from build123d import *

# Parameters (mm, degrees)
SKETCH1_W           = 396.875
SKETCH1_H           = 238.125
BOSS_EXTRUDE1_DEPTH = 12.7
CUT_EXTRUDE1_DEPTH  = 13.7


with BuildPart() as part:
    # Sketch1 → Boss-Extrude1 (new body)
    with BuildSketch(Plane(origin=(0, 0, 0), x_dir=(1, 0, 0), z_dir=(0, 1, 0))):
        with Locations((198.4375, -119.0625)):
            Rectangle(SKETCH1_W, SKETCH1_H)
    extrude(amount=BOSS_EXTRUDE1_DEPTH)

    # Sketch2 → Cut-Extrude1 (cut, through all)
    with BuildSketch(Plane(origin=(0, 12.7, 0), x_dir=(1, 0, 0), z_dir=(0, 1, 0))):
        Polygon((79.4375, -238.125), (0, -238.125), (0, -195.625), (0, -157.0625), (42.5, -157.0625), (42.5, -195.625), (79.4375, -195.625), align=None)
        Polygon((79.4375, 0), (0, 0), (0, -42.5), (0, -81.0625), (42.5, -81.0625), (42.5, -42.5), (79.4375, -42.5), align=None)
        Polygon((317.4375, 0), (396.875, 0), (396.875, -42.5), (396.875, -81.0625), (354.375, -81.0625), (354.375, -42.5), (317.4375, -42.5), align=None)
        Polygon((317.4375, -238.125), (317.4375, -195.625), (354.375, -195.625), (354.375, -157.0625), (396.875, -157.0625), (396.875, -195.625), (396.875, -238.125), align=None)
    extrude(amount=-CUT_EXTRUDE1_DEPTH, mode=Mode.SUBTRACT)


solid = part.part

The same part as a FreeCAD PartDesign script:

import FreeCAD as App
import Part
import Sketcher

V = App.Vector
Q = App.Units.Quantity


def add_polygon(sketch, points):
    """Adds a closed chain of lines whose ends are joined by coincident constraints."""
    first, n = sketch.GeometryCount, len(points)
    for a, b in zip(points, points[1:] + points[:1]):
        sketch.addGeometry(Part.LineSegment(App.Vector(*a, 0), App.Vector(*b, 0)), False)
    for i in range(n):
        sketch.addConstraint(Sketcher.Constraint("Coincident", first + i, 2, first + (i + 1) % n, 1))

doc = App.newDocument("Part")
body = doc.addObject("PartDesign::Body", "Body")

sketch1 = body.newObject("Sketcher::SketchObject", "Sketch")
sketch1.AttachmentSupport = (doc.getObject("XZ_Plane"), [""])
sketch1.MapMode = "FlatFace"
add_polygon(sketch1, [(0, 0), (0, 238), (397, 238), (397, 0)])
sketch1.addConstraint([
    Sketcher.Constraint("Vertical", 0),
    Sketcher.Constraint("Horizontal", 1),
    Sketcher.Constraint("Vertical", 2),
    Sketcher.Constraint("Horizontal", 3),
    Sketcher.Constraint("Coincident", 3, 2, -1, 1),
    Sketcher.Constraint("DistanceX", 1, 1, 1, 2, Q("15.625 in")),
    Sketcher.Constraint("DistanceY", 0, 1, 0, 2, Q("9.375 in")),
])
pad1 = body.newObject("PartDesign::Pad", "Pad")
pad1.Profile = sketch1
pad1.Length = Q("0.5 in")
pad1.Reversed = True

sketch2 = body.newObject("Sketcher::SketchObject", "Sketch001")
sketch2.AttachmentSupport = (doc.getObject("XZ_Plane"), [""])
sketch2.MapMode = "FlatFace"
sketch2.AttachmentOffset = App.Placement(V(0, 0, -0.5 * 25.4), App.Rotation())
add_polygon(sketch2, [(0, 238), (79, 238), (79, 196), (42, 196), (42, 157), (0, 157)])
add_polygon(sketch2, [(79, 0), (0, 0), (0, 81), (42, 81), (42, 42), (79, 42)])
add_polygon(sketch2, [(397, 0), (317, 0), (317, 42), (354, 42), (354, 81), (397, 81)])
add_polygon(sketch2, [(317, 196), (317, 238), (397, 238), (397, 157), (354, 157), (354, 196)])
sketch2.addConstraint([
    Sketcher.Constraint("Horizontal", 0),
    Sketcher.Constraint("Vertical", 1),
    Sketcher.Constraint("Horizontal", 2),
    Sketcher.Constraint("Vertical", 3),
    Sketcher.Constraint("Horizontal", 4),
    Sketcher.Constraint("Vertical", 5),
    Sketcher.Constraint("Horizontal", 6),
    Sketcher.Constraint("Vertical", 7),
    Sketcher.Constraint("Horizontal", 8),
    Sketcher.Constraint("Vertical", 9),
    Sketcher.Constraint("Horizontal", 10),
    Sketcher.Constraint("Vertical", 11),
    Sketcher.Constraint("Horizontal", 12),
    Sketcher.Constraint("Vertical", 13),
    Sketcher.Constraint("Horizontal", 14),
    Sketcher.Constraint("Vertical", 15),
    Sketcher.Constraint("Horizontal", 16),
    Sketcher.Constraint("Vertical", 17),
    Sketcher.Constraint("Vertical", 18),
    Sketcher.Constraint("Horizontal", 19),
    Sketcher.Constraint("Vertical", 20),
    Sketcher.Constraint("Horizontal", 21),
    Sketcher.Constraint("Vertical", 22),
    Sketcher.Constraint("Horizontal", 23),
    Sketcher.Constraint("Coincident", 6, 2, -1, 1),
    Sketcher.Constraint("PointOnObject", 4, 2, -2),
    Sketcher.Constraint("PointOnObject", 12, 2, -1),
    Sketcher.Constraint("Horizontal", 10, 2, 13, 2),
    Sketcher.Constraint("Horizontal", 8, 2, 15, 2),
    Sketcher.Constraint("Horizontal", 5, 2, 18, 2),
    Sketcher.Constraint("Horizontal", 4, 2, 20, 2),
    Sketcher.Constraint("Horizontal", 2, 2, 22, 2),
    Sketcher.Constraint("Vertical", 3, 2, 8, 2),
    Sketcher.Constraint("Vertical", 1, 2, 10, 2),
    Sketcher.Constraint("Vertical", 13, 2, 18, 2),
    Sketcher.Constraint("Vertical", 17, 2, 19, 2),
    Sketcher.Constraint("Vertical", 15, 2, 21, 2),
    Sketcher.Constraint("Equal", 6, 12),
    Sketcher.Constraint("Equal", 10, 14),
    Sketcher.Constraint("Equal", 21, 1),
    Sketcher.Constraint("Equal", 5, 7),
    Sketcher.Constraint("Equal", 3, 9),
    Sketcher.Constraint("DistanceY", -1, 1, 0, 2, Q("9.375 in")),
    Sketcher.Constraint("DistanceX", -1, 1, 16, 2, Q("15.625 in")),
    Sketcher.Constraint("DistanceX", 0, 1, 0, 2, 79.4375),
    Sketcher.Constraint("DistanceX", 2, 2, 2, 1, 36.9375),
    Sketcher.Constraint("DistanceY", 3, 2, 3, 1, 38.5625),
])
pocket1 = body.newObject("PartDesign::Pocket", "Pocket")
pocket1.Profile = sketch2
pocket1.Type = "ThroughAll"
pocket1.Reversed = True

doc.recompute()
